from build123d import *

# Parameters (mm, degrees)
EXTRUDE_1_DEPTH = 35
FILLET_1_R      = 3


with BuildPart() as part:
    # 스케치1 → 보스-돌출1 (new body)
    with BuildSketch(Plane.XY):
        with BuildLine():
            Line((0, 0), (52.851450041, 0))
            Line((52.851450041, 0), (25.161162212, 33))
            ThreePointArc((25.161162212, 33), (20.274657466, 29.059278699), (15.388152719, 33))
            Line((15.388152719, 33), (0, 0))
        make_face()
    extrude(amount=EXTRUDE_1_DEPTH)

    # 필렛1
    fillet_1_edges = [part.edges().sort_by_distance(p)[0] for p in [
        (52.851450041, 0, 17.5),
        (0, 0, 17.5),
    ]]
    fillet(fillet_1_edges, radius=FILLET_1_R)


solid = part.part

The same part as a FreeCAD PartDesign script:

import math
import FreeCAD as App
import Part
import Sketcher
Q = App.Units.Quantity


def edges_at(feature, points):
    """Names of the edges that pass closest to the given points."""
    edges = feature.Shape.Edges
    near = lambda p: min(range(len(edges)), key=lambda i: edges[i].distToShape(Part.Vertex(*p))[0])
    return sorted({f"Edge{near(p) + 1}" for p in points})

doc = App.newDocument("Part")
body = doc.addObject("PartDesign::Body", "Body")

# Sketch on XY plane
sketch1 = doc.addObject("Sketcher::SketchObject", "Sketch")
body.addObject(sketch1)
sketch1.AttachmentSupport = (doc.XY_Plane, [""])
sketch1.MapMode = "FlatFace"
sketch1.addGeometry(Part.LineSegment(App.Vector(0, 0, 0), App.Vector(53, 0, 0)), False)
sketch1.addGeometry(Part.LineSegment(App.Vector(53, 0, 0), App.Vector(25, 33, 0)), False)
sketch1.addGeometry(Part.ArcOfCircle(Part.Circle(App.Vector(20, 34, 0), App.Vector(0, 0, 1), 5), math.radians(-168), math.radians(-12)), False)
sketch1.addGeometry(Part.LineSegment(App.Vector(15, 33, 0), App.Vector(0, 0, 0)), False)
sketch1.addConstraint(Sketcher.Constraint("Coincident", 0, 2, 1, 1))
sketch1.addConstraint(Sketcher.Constraint("Coincident", 1, 2, 2, 2))
sketch1.addConstraint(Sketcher.Constraint("Coincident", 2, 1, 3, 1))
sketch1.addConstraint(Sketcher.Constraint("Coincident", 3, 2, 0, 1))
sketch1.addConstraint(Sketcher.Constraint("Horizontal", 0))
sketch1.addConstraint(Sketcher.Constraint("Coincident", 3, 2, -1, 1))
sketch1.addConstraint(Sketcher.Constraint("Horizontal", 1, 2, 2, 1))
sketch1.addConstraint(Sketcher.Constraint("Radius", 2, 5.0))
sketch1.addConstraint(Sketcher.Constraint("Angle", 1, Q("130 deg")))
sketch1.addConstraint(Sketcher.Constraint("Angle", 3, Q("-115 deg")))
sketch1.addConstraint(Sketcher.Constraint("DistanceY", -1, 1, 1, 2, 33.0))
sketch1.addConstraint(Sketcher.Constraint("DistanceX", 0, 1, 0, 2, 52.85145))
pad1 = doc.addObject("PartDesign::Pad", "Pad")
body.addObject(pad1)
pad1.Profile = sketch1
pad1.Length = 35
doc.recompute()

fillet = doc.addObject("PartDesign::Fillet", "Fillet")
body.addObject(fillet)
fillet.Base = (pad1, edges_at(pad1, [(52.851, 0, 17.5), (0, 0, 17.5)]))
fillet.Radius = 3

doc.recompute()
